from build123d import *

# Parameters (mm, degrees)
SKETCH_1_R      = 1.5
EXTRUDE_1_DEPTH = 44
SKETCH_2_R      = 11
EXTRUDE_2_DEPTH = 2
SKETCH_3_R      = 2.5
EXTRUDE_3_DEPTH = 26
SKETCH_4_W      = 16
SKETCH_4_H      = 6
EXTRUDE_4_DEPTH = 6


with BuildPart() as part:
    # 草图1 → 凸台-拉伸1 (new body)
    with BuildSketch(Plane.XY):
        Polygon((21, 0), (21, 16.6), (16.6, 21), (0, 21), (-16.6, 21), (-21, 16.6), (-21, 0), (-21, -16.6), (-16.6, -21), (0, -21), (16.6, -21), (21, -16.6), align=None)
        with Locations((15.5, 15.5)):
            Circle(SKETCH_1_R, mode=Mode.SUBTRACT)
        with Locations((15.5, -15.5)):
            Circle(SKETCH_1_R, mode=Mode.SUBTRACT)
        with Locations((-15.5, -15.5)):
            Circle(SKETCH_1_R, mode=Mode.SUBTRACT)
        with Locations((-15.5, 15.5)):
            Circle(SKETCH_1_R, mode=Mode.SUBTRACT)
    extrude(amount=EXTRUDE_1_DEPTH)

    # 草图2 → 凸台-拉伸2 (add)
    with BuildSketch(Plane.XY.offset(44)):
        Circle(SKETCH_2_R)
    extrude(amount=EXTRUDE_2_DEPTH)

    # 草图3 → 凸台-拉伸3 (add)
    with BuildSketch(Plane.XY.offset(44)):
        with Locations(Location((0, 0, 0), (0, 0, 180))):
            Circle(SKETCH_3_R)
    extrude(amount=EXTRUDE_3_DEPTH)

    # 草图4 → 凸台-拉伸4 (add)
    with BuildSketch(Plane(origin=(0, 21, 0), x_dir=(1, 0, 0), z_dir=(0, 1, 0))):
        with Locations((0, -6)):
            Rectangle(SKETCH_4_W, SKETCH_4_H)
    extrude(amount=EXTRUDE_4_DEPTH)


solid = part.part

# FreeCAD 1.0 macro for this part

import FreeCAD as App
import Part
import Sketcher
from FreeCAD import Vector

doc = App.newDocument("Part")
body = doc.addObject("PartDesign::Body", "Body")

# Sketch on XY plane
sketch1 = doc.addObject("Sketcher::SketchObject", "Sketch")
body.addObject(sketch1)
sketch1.AttachmentSupport = (doc.XY_Plane, [""])
sketch1.MapMode = "FlatFace"
sketch1.addGeometry([
    Part.LineSegment(Vector(21, 16.6, 0), Vector(16.6, 21, 0)),  # 0
    Part.LineSegment(Vector(16.6, 21, 0), Vector(-16.6, 21, 0)),  # 1
    Part.LineSegment(Vector(-16.6, 21, 0), Vector(-21, 16.6, 0)),  # 2
    Part.LineSegment(Vector(-21, 16.6, 0), Vector(-21, -16.6, 0)),  # 3
    Part.LineSegment(Vector(-21, -16.6, 0), Vector(-16.6, -21, 0)),  # 4
    Part.LineSegment(Vector(-16.6, -21, 0), Vector(16.6, -21, 0)),  # 5
    Part.LineSegment(Vector(16.6, -21, 0), Vector(21, -16.6, 0)),  # 6
    Part.LineSegment(Vector(21, -16.6, 0), Vector(21, 16.6, 0)),  # 7
    Part.Circle(Vector(-15.5, -15.5, 0), Vector(0, 0, 1), 1.5),  # 8
    Part.Circle(Vector(15.5, -15.5, 0), Vector(0, 0, 1), 1.5),  # 9
    Part.Circle(Vector(-15.5, 15.5, 0), Vector(0, 0, 1), 1.5),  # 10
    Part.Circle(Vector(15.5, 15.5, 0), Vector(0, 0, 1), 1.5),  # 11
], False)
sketch1.addConstraint([
    Sketcher.Constraint("Coincident", 0, 2, 1, 1),
    Sketcher.Constraint("Coincident", 1, 2, 2, 1),
    Sketcher.Constraint("Coincident", 2, 2, 3, 1),
    Sketcher.Constraint("Coincident", 3, 2, 4, 1),
    Sketcher.Constraint("Coincident", 4, 2, 5, 1),
    Sketcher.Constraint("Coincident", 5, 2, 6, 1),
    Sketcher.Constraint("Coincident", 6, 2, 7, 1),
    Sketcher.Constraint("Coincident", 7, 2, 0, 1),
    Sketcher.Constraint("Horizontal", 1),
    Sketcher.Constraint("Vertical", 3),
    Sketcher.Constraint("Horizontal", 5),
    Sketcher.Constraint("Vertical", 7),
    Sketcher.Constraint("Equal", 8, 9),
    Sketcher.Constraint("Equal", 9, 10),
    Sketcher.Constraint("Equal", 10, 11),
    Sketcher.Constraint("Symmetric", 9, 3, 10, 3, -1, 1),
    Sketcher.Constraint("Symmetric", 8, 3, 11, 3, -1, 1),
    Sketcher.Constraint("Symmetric", 0, 2, 4, 2, -1, 1),
    Sketcher.Constraint("Symmetric", 2, 2, 6, 2, -1, 1),
    Sketcher.Constraint("Symmetric", 8, 3, 9, 3, -2),
    Sketcher.Constraint("Perpendicular", 0, 2),
    Sketcher.Constraint("Perpendicular", 2, 4),
    Sketcher.Constraint("Perpendicular", 4, 6),
    Sketcher.Constraint("Horizontal", 3, 2, 6, 2),
    Sketcher.Constraint("Vertical", 1, 2, 4, 2),
    Sketcher.Constraint("Equal", 5, 3),
    Sketcher.Constraint("Diameter", 8, 3.0),
    Sketcher.Constraint("DistanceX", 1, 2, 1, 1, 33.2),
    Sketcher.Constraint("DistanceY", -1, 1, 0, 2, 21.0),
    Sketcher.Constraint("DistanceX", 8, 3, 9, 3, 31.0),
    Sketcher.Constraint("DistanceY", 8, 3, 10, 3, 31.0),
])
pad1 = doc.addObject("PartDesign::Pad", "Pad")
body.addObject(pad1)
pad1.Profile = sketch1
pad1.Length = 44

# Sketch on XY plane
sketch2 = doc.addObject("Sketcher::SketchObject", "Sketch001")
body.addObject(sketch2)
sketch2.AttachmentSupport = (doc.XY_Plane, [""])
sketch2.MapMode = "FlatFace"
sketch2.AttachmentOffset = App.Placement(Vector(0, 0, 44), App.Rotation())
sketch2.addGeometry(Part.Circle(Vector(0, 0, 0), Vector(0, 0, 1), 11), False)
sketch2.addConstraint([
    Sketcher.Constraint("Coincident", 0, 3, -1, 1),
    Sketcher.Constraint("Diameter", 0, 22.0),
])
pad2 = doc.addObject("PartDesign::Pad", "Pad001")
body.addObject(pad2)
pad2.Profile = sketch2
pad2.Length = 2

# Sketch on XY plane
sketch3 = doc.addObject("Sketcher::SketchObject", "Sketch002")
body.addObject(sketch3)
sketch3.AttachmentSupport = (doc.XY_Plane, [""])
sketch3.MapMode = "FlatFace"
sketch3.AttachmentOffset = App.Placement(Vector(0, 0, 44), App.Rotation())
sketch3.addGeometry(Part.Circle(Vector(0, 0, 0), Vector(0, 0, 1), 2.5), False)
sketch3.addConstraint([
    Sketcher.Constraint("Coincident", 0, 3, -1, 1),
    Sketcher.Constraint("Diameter", 0, 5.0),
])
pad3 = doc.addObject("PartDesign::Pad", "Pad002")
body.addObject(pad3)
pad3.Profile = sketch3
pad3.Length = 26

# Sketch on XZ plane
sketch4 = doc.addObject("Sketcher::SketchObject", "Sketch003")
body.addObject(sketch4)
sketch4.AttachmentSupport = (doc.XZ_Plane, [""])
sketch4.MapMode = "FlatFace"
sketch4.AttachmentOffset = App.Placement(Vector(0, 0, -21), App.Rotation())
sketch4.addGeometry([
    Part.LineSegment(Vector(-8, 3, 0), Vector(-8, 9, 0)),
    Part.LineSegment(Vector(-8, 9, 0), Vector(8, 9, 0)),
    Part.LineSegment(Vector(8, 9, 0), Vector(8, 3, 0)),
    Part.LineSegment(Vector(8, 3, 0), Vector(-8, 3, 0)),
], False)
sketch4.addConstraint([
    Sketcher.Constraint("Coincident", 0, 2, 1, 1),
    Sketcher.Constraint("Coincident", 1, 2, 2, 1),
    Sketcher.Constraint("Coincident", 2, 2, 3, 1),
    Sketcher.Constraint("Coincident", 3, 2, 0, 1),
    Sketcher.Constraint("Vertical", 0),
    Sketcher.Constraint("Horizontal", 1),
    Sketcher.Constraint("Vertical", 2),
    Sketcher.Constraint("Horizontal", 3),
    Sketcher.Constraint("DistanceX", 1, 1, 1, 2, 16.0),
    Sketcher.Constraint("DistanceY", 0, 1, 0, 2, 6.0),
    Sketcher.Constraint("DistanceX", 0, 2, -1, 1, 8.0),
    Sketcher.Constraint("DistanceY", -1, 1, 0, 2, 9.0),
])
pad4 = doc.addObject("PartDesign::Pad", "Pad003")
body.addObject(pad4)
pad4.Profile = sketch4
pad4.Length = 6
pad4.Reversed = True

doc.recompute()
